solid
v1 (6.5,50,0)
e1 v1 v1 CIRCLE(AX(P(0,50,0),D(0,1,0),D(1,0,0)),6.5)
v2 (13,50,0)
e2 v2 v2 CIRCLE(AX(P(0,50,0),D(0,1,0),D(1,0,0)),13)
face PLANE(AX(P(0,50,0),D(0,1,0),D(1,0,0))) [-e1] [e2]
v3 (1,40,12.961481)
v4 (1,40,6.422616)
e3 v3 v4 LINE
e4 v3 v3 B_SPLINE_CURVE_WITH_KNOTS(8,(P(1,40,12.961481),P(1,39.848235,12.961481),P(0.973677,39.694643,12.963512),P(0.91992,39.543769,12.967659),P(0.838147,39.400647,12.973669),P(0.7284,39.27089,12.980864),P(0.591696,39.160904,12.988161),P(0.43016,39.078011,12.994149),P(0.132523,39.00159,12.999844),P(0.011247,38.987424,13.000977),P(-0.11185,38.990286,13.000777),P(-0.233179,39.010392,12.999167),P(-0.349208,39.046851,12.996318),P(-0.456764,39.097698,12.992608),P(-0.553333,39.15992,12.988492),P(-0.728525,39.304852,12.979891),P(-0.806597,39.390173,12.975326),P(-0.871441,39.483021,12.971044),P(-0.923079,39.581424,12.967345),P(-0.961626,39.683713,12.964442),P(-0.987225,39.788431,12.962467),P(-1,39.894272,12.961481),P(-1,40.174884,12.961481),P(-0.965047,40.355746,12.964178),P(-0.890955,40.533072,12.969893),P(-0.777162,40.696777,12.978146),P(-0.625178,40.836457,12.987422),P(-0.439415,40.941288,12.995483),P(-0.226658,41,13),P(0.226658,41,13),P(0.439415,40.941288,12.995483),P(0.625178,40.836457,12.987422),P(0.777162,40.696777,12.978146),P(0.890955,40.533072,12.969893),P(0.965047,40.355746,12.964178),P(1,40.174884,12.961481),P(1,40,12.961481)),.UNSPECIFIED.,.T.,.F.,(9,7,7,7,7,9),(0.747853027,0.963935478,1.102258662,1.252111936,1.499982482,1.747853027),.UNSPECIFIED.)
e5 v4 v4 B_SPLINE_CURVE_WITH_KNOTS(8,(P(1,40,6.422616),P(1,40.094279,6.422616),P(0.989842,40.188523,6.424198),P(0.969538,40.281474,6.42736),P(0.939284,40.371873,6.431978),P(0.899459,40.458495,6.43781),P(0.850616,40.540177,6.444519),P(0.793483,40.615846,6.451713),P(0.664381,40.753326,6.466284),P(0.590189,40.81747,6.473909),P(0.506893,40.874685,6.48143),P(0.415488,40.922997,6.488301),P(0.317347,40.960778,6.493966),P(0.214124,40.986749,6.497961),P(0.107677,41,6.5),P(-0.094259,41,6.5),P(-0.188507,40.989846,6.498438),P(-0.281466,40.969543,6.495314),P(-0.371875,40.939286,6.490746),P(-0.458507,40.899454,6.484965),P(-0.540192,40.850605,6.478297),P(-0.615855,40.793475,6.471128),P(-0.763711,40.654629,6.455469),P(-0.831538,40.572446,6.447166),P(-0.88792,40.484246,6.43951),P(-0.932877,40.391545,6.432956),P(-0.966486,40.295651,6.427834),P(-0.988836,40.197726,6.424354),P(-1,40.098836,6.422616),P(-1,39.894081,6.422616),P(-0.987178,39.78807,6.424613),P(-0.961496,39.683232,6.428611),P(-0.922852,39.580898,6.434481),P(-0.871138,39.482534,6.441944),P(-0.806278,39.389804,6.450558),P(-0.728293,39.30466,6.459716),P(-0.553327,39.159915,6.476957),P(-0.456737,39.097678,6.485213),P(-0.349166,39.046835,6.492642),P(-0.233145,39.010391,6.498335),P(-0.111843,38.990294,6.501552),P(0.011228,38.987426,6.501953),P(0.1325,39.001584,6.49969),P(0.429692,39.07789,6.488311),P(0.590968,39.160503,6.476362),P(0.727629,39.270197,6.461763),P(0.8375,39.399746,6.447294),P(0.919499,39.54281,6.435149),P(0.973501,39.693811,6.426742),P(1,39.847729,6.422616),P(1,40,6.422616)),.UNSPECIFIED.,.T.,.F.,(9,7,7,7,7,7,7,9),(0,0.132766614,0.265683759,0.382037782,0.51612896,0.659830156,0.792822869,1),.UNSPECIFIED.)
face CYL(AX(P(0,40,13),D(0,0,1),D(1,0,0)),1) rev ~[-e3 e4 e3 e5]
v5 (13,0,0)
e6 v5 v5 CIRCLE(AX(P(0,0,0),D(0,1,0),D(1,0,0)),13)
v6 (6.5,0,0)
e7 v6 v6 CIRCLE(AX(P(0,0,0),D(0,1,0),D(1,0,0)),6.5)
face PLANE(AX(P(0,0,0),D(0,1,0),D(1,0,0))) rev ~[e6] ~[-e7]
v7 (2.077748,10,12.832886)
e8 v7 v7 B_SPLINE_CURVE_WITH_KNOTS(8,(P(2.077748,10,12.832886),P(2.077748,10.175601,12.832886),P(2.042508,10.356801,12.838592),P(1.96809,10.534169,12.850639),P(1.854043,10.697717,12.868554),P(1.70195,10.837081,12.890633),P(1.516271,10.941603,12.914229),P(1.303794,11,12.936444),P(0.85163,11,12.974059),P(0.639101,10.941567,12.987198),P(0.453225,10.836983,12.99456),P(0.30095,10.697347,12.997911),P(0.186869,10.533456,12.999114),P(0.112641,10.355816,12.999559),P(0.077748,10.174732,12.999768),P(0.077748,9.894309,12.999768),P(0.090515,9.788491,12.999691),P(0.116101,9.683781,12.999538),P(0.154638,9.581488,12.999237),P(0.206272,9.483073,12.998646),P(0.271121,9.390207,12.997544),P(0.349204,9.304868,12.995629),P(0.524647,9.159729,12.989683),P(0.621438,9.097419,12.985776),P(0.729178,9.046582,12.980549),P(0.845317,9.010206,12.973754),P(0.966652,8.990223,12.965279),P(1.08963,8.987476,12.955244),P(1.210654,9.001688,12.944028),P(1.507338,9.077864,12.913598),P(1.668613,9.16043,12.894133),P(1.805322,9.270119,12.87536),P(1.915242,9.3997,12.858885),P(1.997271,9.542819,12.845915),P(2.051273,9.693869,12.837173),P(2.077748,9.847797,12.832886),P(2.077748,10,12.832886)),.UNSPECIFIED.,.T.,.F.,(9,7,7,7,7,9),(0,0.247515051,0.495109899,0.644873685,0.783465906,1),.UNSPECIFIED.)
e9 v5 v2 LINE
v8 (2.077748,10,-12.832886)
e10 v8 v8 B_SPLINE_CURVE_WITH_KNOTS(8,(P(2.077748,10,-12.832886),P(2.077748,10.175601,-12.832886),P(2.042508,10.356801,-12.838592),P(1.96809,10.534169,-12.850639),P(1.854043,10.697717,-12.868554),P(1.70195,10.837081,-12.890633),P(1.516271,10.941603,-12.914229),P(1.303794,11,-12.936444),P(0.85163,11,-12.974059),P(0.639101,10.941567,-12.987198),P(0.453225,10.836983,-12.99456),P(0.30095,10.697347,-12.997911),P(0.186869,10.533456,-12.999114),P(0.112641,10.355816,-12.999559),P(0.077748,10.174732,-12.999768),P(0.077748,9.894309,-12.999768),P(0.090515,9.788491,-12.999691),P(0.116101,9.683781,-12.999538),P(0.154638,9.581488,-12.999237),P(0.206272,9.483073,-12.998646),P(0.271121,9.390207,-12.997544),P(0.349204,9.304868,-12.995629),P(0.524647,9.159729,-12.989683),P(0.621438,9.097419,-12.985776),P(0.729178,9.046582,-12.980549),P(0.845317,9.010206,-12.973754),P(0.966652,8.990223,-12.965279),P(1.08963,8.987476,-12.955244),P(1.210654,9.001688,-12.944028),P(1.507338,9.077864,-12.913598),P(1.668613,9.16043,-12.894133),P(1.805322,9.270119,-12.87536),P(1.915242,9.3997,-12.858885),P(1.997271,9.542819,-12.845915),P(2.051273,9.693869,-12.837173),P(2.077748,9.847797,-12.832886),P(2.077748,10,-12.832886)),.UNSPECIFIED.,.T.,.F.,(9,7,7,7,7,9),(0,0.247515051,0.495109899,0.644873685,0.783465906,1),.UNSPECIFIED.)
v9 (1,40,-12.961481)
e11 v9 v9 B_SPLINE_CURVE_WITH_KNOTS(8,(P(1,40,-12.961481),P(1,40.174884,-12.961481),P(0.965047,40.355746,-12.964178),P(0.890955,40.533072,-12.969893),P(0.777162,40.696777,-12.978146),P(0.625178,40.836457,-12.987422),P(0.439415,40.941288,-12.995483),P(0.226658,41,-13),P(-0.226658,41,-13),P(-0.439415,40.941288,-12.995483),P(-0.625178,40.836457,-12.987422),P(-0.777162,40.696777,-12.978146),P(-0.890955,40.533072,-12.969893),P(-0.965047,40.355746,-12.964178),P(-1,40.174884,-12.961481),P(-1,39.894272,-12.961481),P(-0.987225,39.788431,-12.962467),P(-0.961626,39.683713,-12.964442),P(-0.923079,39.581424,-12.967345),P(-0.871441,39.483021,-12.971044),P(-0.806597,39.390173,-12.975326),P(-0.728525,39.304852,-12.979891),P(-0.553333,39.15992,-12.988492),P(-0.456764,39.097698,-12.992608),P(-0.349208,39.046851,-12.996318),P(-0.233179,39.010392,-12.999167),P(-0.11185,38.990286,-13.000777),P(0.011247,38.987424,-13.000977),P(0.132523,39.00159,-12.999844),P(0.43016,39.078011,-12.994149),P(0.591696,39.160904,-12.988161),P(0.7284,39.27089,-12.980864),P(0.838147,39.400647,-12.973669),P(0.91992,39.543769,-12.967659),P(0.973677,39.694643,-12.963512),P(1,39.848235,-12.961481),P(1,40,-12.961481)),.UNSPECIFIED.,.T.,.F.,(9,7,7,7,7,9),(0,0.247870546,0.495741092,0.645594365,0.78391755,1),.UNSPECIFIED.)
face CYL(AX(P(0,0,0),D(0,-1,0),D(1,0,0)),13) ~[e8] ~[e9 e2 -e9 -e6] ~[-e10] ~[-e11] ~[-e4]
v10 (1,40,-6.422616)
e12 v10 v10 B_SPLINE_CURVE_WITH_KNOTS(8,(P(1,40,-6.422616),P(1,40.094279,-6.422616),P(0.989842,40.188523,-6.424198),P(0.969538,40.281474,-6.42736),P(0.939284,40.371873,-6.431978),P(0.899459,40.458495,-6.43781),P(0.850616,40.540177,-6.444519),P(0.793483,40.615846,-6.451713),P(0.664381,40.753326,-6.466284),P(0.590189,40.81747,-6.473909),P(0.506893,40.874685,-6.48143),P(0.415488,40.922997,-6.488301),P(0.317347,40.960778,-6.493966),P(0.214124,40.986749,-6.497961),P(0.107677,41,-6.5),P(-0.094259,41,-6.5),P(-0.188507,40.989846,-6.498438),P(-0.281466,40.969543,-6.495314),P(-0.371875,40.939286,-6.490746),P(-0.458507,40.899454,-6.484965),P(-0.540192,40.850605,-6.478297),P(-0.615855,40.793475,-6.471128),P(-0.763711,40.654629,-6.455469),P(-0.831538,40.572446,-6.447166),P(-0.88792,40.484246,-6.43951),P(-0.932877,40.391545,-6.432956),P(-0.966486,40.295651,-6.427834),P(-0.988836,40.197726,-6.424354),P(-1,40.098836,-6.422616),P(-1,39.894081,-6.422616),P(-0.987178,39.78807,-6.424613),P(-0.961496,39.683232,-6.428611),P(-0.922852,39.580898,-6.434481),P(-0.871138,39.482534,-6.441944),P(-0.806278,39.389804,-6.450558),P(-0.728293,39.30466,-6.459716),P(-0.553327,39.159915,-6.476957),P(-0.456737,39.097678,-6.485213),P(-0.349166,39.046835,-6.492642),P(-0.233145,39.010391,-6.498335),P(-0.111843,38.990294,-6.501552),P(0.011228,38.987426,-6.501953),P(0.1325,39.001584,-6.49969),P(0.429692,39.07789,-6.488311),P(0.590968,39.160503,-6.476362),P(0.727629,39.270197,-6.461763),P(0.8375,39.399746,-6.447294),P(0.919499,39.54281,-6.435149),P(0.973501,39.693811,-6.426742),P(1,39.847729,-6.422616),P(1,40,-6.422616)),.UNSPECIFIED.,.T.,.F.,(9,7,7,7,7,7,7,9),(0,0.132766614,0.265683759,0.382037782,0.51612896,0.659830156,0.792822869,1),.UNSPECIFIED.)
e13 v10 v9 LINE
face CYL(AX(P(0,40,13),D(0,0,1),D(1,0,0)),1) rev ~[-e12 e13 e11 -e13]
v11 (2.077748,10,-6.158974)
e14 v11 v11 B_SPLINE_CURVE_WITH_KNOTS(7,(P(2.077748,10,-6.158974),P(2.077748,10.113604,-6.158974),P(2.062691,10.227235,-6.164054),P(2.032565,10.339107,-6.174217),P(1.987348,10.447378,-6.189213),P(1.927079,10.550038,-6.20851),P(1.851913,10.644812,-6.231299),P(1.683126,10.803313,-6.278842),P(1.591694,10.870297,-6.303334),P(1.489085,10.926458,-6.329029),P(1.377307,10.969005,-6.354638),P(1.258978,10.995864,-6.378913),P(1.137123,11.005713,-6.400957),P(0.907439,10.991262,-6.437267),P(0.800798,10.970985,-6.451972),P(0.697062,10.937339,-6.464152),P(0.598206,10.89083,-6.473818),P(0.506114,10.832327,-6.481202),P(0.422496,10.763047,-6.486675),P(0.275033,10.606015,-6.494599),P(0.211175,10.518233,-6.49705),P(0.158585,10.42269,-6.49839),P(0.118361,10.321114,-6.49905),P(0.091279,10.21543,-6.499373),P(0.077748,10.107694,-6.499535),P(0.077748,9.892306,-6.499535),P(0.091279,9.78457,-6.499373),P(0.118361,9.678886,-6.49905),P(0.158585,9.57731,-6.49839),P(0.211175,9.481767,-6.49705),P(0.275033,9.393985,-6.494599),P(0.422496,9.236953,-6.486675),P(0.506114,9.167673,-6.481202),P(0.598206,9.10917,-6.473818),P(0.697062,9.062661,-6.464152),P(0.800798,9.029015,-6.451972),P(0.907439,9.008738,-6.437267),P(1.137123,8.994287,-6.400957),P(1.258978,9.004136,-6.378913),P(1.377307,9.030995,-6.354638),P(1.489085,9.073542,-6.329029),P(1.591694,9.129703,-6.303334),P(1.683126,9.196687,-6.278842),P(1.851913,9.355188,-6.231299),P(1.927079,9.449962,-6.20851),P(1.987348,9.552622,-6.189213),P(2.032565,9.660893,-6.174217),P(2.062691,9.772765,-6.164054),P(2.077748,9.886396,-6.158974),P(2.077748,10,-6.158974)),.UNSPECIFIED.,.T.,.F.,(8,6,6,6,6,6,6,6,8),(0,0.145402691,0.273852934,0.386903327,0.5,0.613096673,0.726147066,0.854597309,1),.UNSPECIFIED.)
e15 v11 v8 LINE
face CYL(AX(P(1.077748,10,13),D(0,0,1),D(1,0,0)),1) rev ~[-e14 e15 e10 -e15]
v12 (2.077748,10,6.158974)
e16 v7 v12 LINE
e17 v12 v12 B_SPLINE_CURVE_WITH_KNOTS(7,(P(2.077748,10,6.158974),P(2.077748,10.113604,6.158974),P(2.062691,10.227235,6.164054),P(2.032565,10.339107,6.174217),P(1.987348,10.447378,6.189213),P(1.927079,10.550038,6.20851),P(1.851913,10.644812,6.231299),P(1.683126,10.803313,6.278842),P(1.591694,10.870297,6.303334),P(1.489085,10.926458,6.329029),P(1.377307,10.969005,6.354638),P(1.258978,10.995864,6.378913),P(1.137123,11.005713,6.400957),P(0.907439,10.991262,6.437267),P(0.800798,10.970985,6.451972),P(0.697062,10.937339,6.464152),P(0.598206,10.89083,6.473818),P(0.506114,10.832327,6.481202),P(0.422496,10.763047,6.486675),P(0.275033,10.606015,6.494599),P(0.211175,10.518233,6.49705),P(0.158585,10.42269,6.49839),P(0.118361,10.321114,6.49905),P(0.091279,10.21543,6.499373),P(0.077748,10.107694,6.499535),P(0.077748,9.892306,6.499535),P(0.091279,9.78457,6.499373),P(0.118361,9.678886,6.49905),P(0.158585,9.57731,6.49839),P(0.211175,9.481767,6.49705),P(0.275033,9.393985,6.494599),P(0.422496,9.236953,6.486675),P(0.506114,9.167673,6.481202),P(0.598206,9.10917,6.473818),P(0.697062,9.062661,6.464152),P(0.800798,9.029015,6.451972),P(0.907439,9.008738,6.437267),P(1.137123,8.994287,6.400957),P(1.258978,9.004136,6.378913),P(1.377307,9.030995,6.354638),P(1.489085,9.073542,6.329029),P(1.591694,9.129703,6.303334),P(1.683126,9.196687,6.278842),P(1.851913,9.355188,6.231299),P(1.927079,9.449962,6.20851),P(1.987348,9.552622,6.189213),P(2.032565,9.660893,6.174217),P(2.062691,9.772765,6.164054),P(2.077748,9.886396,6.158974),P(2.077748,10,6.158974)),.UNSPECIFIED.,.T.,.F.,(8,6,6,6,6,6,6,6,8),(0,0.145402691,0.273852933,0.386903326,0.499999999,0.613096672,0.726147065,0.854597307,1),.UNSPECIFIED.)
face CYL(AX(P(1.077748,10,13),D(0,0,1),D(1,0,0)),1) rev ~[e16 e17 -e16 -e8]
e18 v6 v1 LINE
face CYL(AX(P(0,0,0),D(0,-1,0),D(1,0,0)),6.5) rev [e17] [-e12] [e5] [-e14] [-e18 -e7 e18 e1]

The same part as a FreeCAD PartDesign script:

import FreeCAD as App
import Part
import Sketcher
from FreeCAD import Vector

doc = App.newDocument("Part")
params = doc.addObject("Spreadsheet::Sheet", "Params")
for row, (alias, value) in enumerate([
    ("sketch1_diameter", "26 mm"),
    ("sketch1_diameter2", "13 mm"),
    ("pad1_length", "50 mm"),
    ("sketch2_diameter", "2 mm"),
    ("pocket1_length", "73 mm"),
], start=1):
    params.set(f"A{row}", alias)
    params.set(f"B{row}", "=" + value)
    params.setAlias(f"B{row}", alias)

body = doc.addObject("PartDesign::Body", "Body")

# Sketch on XZ plane
sketch1 = body.newObject("Sketcher::SketchObject", "Sketch")
sketch1.AttachmentSupport = (doc.getObject("XZ_Plane"), [""])
sketch1.MapMode = "FlatFace"
sketch1.addGeometry([
    Part.Circle(Vector(0, 0, 0), Vector(0, 0, 1), 13),
    Part.Circle(Vector(0, 0, 0), Vector(0, 0, 1), 6),
], False)
sketch1.addConstraint([
    Sketcher.Constraint("Coincident", 0, 3, -1, 1),
    Sketcher.Constraint("Coincident", 1, 3, -1, 1),
    Sketcher.Constraint("Diameter", 0, 26.0),
    Sketcher.Constraint("Diameter", 1, 13.0),
])
sketch1.setExpression("Constraints[2]", "Params.sketch1_diameter")
sketch1.setExpression("Constraints[3]", "Params.sketch1_diameter2")
pad1 = body.newObject("PartDesign::Pad", "Pad")
pad1.Profile = sketch1
pad1.setExpression("Length", "Params.pad1_length")
pad1.Reversed = True

# Sketch on XY plane
sketch2 = body.newObject("Sketcher::SketchObject", "Sketch001")
sketch2.AttachmentSupport = (doc.getObject("XY_Plane"), [""])
sketch2.MapMode = "FlatFace"
sketch2.AttachmentOffset = App.Placement(Vector(0, 0, 13), App.Rotation())
sketch2.addGeometry([
    Part.Circle(Vector(0, 40, 0), Vector(0, 0, 1), 1),
    Part.Circle(Vector(1.1, 10, 0), Vector(0, 0, 1), 1),
], False)
sketch2.addConstraint([
    Sketcher.Constraint("Equal", 0, 1),
    Sketcher.Constraint("PointOnObject", 0, 3, -2),
    Sketcher.Constraint("Diameter", 0, 2.0),
    Sketcher.Constraint("DistanceY", -1, 1, 0, 3, 40.0),
    Sketcher.Constraint("DistanceY", -1, 1, 1, 3, 10.0),
    Sketcher.Constraint("DistanceX", -1, 1, 1, 3, 1.077748),
])
sketch2.setExpression("Constraints[2]", "Params.sketch2_diameter")
pocket1 = body.newObject("PartDesign::Pocket", "Pocket")
pocket1.Profile = sketch2
pocket1.setExpression("Length", "Params.pocket1_length")

doc.recompute()
